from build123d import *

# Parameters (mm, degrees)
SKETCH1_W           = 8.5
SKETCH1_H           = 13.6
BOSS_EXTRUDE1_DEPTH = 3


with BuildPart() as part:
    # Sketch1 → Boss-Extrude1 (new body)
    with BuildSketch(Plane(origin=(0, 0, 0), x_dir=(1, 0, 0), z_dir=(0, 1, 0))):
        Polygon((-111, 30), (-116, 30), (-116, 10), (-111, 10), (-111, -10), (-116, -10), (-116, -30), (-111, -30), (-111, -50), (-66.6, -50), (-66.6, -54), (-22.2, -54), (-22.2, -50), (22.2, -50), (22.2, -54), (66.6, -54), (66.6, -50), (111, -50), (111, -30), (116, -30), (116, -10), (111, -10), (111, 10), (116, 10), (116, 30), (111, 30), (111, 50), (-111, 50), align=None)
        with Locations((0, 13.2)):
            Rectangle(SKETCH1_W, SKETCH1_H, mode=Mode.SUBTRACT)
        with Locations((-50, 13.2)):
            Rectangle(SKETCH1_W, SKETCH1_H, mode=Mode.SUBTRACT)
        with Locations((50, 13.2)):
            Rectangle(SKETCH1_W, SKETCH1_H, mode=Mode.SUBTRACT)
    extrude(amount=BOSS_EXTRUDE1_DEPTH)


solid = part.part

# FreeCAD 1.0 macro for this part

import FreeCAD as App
import Part
import Sketcher
Q = App.Units.Quantity


def add_polygon(sketch, points):
    """Adds a closed chain of lines whose ends are joined by coincident constraints."""
    first, n = sketch.GeometryCount, len(points)
    for a, b in zip(points, points[1:] + points[:1]):
        sketch.addGeometry(Part.LineSegment(App.Vector(*a, 0), App.Vector(*b, 0)), False)
    for i in range(n):
        sketch.addConstraint(Sketcher.Constraint("Coincident", first + i, 2, first + (i + 1) % n, 1))

doc = App.newDocument("Part")
body = doc.addObject("PartDesign::Body", "Body")

# Sketch on XZ plane
sketch1 = body.newObject("Sketcher::SketchObject", "Sketch")
sketch1.AttachmentSupport = (doc.getObject("XZ_Plane"), [""])
sketch1.MapMode = "FlatFace"
add_polygon(sketch1, [(-111, -30), (-116, -30), (-116, -10), (-111, -10), (-111, 10), (-116, 10), (-116, 30), (-111, 30), (-111, 50), (-66.6, 50), (-66.6, 54), (-22.2, 54), (-22.2, 50), (22.2, 50), (22.2, 54), (66.6, 54), (66.6, 50), (111, 50), (111, 30), (116, 30), (116, 10), (111, 10), (111, -10), (116, -10), (116, -30), (111, -30), (111, -50), (-111, -50)])  # lines 0-27
add_polygon(sketch1, [(-45.8, -6.4), (-54.2, -6.4), (-54.2, -20), (-45.8, -20)])  # lines 28-31
add_polygon(sketch1, [(4.2, -6.4), (-4.2, -6.4), (-4.2, -20), (4.2, -20)])  # lines 32-35
add_polygon(sketch1, [(54.2, -6.4), (45.8, -6.4), (45.8, -20), (54.2, -20)])  # lines 36-39
sketch1.addConstraint(Sketcher.Constraint("Horizontal", 0))
sketch1.addConstraint(Sketcher.Constraint("Vertical", 1))
sketch1.addConstraint(Sketcher.Constraint("Horizontal", 2))
sketch1.addConstraint(Sketcher.Constraint("Vertical", 3))
sketch1.addConstraint(Sketcher.Constraint("Horizontal", 4))
sketch1.addConstraint(Sketcher.Constraint("Vertical", 5))
sketch1.addConstraint(Sketcher.Constraint("Horizontal", 6))
sketch1.addConstraint(Sketcher.Constraint("Vertical", 7))
sketch1.addConstraint(Sketcher.Constraint("Horizontal", 8))
sketch1.addConstraint(Sketcher.Constraint("Vertical", 9))
sketch1.addConstraint(Sketcher.Constraint("Horizontal", 10))
sketch1.addConstraint(Sketcher.Constraint("Vertical", 11))
sketch1.addConstraint(Sketcher.Constraint("Horizontal", 12))
sketch1.addConstraint(Sketcher.Constraint("Vertical", 13))
sketch1.addConstraint(Sketcher.Constraint("Horizontal", 14))
sketch1.addConstraint(Sketcher.Constraint("Vertical", 15))
sketch1.addConstraint(Sketcher.Constraint("Horizontal", 16))
sketch1.addConstraint(Sketcher.Constraint("Vertical", 17))
sketch1.addConstraint(Sketcher.Constraint("Horizontal", 18))
sketch1.addConstraint(Sketcher.Constraint("Vertical", 19))
sketch1.addConstraint(Sketcher.Constraint("Horizontal", 20))
sketch1.addConstraint(Sketcher.Constraint("Vertical", 21))
sketch1.addConstraint(Sketcher.Constraint("Horizontal", 22))
sketch1.addConstraint(Sketcher.Constraint("Vertical", 23))
sketch1.addConstraint(Sketcher.Constraint("Horizontal", 24))
sketch1.addConstraint(Sketcher.Constraint("Vertical", 25))
sketch1.addConstraint(Sketcher.Constraint("Horizontal", 26))
sketch1.addConstraint(Sketcher.Constraint("Vertical", 27))
sketch1.addConstraint(Sketcher.Constraint("Horizontal", 28))
sketch1.addConstraint(Sketcher.Constraint("Vertical", 29))
sketch1.addConstraint(Sketcher.Constraint("Horizontal", 30))
sketch1.addConstraint(Sketcher.Constraint("Vertical", 31))
sketch1.addConstraint(Sketcher.Constraint("Horizontal", 32))
sketch1.addConstraint(Sketcher.Constraint("Vertical", 33))
sketch1.addConstraint(Sketcher.Constraint("Horizontal", 34))
sketch1.addConstraint(Sketcher.Constraint("Vertical", 35))
sketch1.addConstraint(Sketcher.Constraint("Horizontal", 36))
sketch1.addConstraint(Sketcher.Constraint("Vertical", 37))
sketch1.addConstraint(Sketcher.Constraint("Horizontal", 38))
sketch1.addConstraint(Sketcher.Constraint("Vertical", 39))
sketch1.addConstraint(Sketcher.Constraint("Symmetric", 0, 2, 18, 2, -1, 1))
sketch1.addConstraint(Sketcher.Constraint("Symmetric", 2, 2, 20, 2, -1, 1))
sketch1.addConstraint(Sketcher.Constraint("Symmetric", 4, 2, 22, 2, -1, 1))
sketch1.addConstraint(Sketcher.Constraint("Symmetric", 6, 2, 24, 2, -1, 1))
sketch1.addConstraint(Sketcher.Constraint("Symmetric", 16, 2, 26, 2, -1, 1))
sketch1.addConstraint(Sketcher.Constraint("Symmetric", 10, 2, 13, 2, -2))
sketch1.addConstraint(Sketcher.Constraint("Symmetric", 8, 2, 15, 2, -2))
sketch1.addConstraint(Sketcher.Constraint("Symmetric", 6, 2, 17, 2, -2))
sketch1.addConstraint(Sketcher.Constraint("Symmetric", 4, 2, 19, 2, -2))
sketch1.addConstraint(Sketcher.Constraint("Symmetric", 31, 2, 36, 2, -2))
sketch1.addConstraint(Sketcher.Constraint("Symmetric", 29, 2, 38, 2, -2))
sketch1.addConstraint(Sketcher.Constraint("Horizontal", 8, 2, 11, 2))
sketch1.addConstraint(Sketcher.Constraint("Horizontal", 31, 2, 32, 2))
sketch1.addConstraint(Sketcher.Constraint("Horizontal", 30, 2, 33, 2))
sketch1.addConstraint(Sketcher.Constraint("Vertical", 3, 2, 6, 2))
sketch1.addConstraint(Sketcher.Constraint("Equal", 8, 10))
sketch1.addConstraint(Sketcher.Constraint("Equal", 10, 12))
sketch1.addConstraint(Sketcher.Constraint("Equal", 30, 32))
sketch1.addConstraint(Sketcher.Constraint("Equal", 1, 3))
sketch1.addConstraint(Sketcher.Constraint("Equal", 5, 7))
sketch1.addConstraint(Sketcher.Constraint("DistanceX", 0, 2, 0, 1, Q("5 mm")))
sketch1.addConstraint(Sketcher.Constraint("DistanceX", 26, 2, 26, 1, Q("222 mm")))
sketch1.addConstraint(Sketcher.Constraint("DistanceY", 1, 1, 1, 2, Q("20 mm")))
sketch1.addConstraint(Sketcher.Constraint("DistanceY", 9, 1, 9, 2, Q("4 mm")))
sketch1.addConstraint(Sketcher.Constraint("DistanceX", 28, 2, 28, 1, Q("8.5 mm")))
sketch1.addConstraint(Sketcher.Constraint("DistanceY", 29, 2, 29, 1, Q("13.6 mm")))
sketch1.addConstraint(Sketcher.Constraint("DistanceY", 29, 2, -1, 1, Q("20 mm")))
sketch1.addConstraint(Sketcher.Constraint("DistanceX", 28, 2, 32, 2, Q("50 mm")))
sketch1.addConstraint(Sketcher.Constraint("DistanceX", 32, 2, 36, 2, Q("50 mm")))
pad1 = body.newObject("PartDesign::Pad", "Pad")
pad1.Profile = sketch1
pad1.Length = 3
pad1.Reversed = True

doc.recompute()
